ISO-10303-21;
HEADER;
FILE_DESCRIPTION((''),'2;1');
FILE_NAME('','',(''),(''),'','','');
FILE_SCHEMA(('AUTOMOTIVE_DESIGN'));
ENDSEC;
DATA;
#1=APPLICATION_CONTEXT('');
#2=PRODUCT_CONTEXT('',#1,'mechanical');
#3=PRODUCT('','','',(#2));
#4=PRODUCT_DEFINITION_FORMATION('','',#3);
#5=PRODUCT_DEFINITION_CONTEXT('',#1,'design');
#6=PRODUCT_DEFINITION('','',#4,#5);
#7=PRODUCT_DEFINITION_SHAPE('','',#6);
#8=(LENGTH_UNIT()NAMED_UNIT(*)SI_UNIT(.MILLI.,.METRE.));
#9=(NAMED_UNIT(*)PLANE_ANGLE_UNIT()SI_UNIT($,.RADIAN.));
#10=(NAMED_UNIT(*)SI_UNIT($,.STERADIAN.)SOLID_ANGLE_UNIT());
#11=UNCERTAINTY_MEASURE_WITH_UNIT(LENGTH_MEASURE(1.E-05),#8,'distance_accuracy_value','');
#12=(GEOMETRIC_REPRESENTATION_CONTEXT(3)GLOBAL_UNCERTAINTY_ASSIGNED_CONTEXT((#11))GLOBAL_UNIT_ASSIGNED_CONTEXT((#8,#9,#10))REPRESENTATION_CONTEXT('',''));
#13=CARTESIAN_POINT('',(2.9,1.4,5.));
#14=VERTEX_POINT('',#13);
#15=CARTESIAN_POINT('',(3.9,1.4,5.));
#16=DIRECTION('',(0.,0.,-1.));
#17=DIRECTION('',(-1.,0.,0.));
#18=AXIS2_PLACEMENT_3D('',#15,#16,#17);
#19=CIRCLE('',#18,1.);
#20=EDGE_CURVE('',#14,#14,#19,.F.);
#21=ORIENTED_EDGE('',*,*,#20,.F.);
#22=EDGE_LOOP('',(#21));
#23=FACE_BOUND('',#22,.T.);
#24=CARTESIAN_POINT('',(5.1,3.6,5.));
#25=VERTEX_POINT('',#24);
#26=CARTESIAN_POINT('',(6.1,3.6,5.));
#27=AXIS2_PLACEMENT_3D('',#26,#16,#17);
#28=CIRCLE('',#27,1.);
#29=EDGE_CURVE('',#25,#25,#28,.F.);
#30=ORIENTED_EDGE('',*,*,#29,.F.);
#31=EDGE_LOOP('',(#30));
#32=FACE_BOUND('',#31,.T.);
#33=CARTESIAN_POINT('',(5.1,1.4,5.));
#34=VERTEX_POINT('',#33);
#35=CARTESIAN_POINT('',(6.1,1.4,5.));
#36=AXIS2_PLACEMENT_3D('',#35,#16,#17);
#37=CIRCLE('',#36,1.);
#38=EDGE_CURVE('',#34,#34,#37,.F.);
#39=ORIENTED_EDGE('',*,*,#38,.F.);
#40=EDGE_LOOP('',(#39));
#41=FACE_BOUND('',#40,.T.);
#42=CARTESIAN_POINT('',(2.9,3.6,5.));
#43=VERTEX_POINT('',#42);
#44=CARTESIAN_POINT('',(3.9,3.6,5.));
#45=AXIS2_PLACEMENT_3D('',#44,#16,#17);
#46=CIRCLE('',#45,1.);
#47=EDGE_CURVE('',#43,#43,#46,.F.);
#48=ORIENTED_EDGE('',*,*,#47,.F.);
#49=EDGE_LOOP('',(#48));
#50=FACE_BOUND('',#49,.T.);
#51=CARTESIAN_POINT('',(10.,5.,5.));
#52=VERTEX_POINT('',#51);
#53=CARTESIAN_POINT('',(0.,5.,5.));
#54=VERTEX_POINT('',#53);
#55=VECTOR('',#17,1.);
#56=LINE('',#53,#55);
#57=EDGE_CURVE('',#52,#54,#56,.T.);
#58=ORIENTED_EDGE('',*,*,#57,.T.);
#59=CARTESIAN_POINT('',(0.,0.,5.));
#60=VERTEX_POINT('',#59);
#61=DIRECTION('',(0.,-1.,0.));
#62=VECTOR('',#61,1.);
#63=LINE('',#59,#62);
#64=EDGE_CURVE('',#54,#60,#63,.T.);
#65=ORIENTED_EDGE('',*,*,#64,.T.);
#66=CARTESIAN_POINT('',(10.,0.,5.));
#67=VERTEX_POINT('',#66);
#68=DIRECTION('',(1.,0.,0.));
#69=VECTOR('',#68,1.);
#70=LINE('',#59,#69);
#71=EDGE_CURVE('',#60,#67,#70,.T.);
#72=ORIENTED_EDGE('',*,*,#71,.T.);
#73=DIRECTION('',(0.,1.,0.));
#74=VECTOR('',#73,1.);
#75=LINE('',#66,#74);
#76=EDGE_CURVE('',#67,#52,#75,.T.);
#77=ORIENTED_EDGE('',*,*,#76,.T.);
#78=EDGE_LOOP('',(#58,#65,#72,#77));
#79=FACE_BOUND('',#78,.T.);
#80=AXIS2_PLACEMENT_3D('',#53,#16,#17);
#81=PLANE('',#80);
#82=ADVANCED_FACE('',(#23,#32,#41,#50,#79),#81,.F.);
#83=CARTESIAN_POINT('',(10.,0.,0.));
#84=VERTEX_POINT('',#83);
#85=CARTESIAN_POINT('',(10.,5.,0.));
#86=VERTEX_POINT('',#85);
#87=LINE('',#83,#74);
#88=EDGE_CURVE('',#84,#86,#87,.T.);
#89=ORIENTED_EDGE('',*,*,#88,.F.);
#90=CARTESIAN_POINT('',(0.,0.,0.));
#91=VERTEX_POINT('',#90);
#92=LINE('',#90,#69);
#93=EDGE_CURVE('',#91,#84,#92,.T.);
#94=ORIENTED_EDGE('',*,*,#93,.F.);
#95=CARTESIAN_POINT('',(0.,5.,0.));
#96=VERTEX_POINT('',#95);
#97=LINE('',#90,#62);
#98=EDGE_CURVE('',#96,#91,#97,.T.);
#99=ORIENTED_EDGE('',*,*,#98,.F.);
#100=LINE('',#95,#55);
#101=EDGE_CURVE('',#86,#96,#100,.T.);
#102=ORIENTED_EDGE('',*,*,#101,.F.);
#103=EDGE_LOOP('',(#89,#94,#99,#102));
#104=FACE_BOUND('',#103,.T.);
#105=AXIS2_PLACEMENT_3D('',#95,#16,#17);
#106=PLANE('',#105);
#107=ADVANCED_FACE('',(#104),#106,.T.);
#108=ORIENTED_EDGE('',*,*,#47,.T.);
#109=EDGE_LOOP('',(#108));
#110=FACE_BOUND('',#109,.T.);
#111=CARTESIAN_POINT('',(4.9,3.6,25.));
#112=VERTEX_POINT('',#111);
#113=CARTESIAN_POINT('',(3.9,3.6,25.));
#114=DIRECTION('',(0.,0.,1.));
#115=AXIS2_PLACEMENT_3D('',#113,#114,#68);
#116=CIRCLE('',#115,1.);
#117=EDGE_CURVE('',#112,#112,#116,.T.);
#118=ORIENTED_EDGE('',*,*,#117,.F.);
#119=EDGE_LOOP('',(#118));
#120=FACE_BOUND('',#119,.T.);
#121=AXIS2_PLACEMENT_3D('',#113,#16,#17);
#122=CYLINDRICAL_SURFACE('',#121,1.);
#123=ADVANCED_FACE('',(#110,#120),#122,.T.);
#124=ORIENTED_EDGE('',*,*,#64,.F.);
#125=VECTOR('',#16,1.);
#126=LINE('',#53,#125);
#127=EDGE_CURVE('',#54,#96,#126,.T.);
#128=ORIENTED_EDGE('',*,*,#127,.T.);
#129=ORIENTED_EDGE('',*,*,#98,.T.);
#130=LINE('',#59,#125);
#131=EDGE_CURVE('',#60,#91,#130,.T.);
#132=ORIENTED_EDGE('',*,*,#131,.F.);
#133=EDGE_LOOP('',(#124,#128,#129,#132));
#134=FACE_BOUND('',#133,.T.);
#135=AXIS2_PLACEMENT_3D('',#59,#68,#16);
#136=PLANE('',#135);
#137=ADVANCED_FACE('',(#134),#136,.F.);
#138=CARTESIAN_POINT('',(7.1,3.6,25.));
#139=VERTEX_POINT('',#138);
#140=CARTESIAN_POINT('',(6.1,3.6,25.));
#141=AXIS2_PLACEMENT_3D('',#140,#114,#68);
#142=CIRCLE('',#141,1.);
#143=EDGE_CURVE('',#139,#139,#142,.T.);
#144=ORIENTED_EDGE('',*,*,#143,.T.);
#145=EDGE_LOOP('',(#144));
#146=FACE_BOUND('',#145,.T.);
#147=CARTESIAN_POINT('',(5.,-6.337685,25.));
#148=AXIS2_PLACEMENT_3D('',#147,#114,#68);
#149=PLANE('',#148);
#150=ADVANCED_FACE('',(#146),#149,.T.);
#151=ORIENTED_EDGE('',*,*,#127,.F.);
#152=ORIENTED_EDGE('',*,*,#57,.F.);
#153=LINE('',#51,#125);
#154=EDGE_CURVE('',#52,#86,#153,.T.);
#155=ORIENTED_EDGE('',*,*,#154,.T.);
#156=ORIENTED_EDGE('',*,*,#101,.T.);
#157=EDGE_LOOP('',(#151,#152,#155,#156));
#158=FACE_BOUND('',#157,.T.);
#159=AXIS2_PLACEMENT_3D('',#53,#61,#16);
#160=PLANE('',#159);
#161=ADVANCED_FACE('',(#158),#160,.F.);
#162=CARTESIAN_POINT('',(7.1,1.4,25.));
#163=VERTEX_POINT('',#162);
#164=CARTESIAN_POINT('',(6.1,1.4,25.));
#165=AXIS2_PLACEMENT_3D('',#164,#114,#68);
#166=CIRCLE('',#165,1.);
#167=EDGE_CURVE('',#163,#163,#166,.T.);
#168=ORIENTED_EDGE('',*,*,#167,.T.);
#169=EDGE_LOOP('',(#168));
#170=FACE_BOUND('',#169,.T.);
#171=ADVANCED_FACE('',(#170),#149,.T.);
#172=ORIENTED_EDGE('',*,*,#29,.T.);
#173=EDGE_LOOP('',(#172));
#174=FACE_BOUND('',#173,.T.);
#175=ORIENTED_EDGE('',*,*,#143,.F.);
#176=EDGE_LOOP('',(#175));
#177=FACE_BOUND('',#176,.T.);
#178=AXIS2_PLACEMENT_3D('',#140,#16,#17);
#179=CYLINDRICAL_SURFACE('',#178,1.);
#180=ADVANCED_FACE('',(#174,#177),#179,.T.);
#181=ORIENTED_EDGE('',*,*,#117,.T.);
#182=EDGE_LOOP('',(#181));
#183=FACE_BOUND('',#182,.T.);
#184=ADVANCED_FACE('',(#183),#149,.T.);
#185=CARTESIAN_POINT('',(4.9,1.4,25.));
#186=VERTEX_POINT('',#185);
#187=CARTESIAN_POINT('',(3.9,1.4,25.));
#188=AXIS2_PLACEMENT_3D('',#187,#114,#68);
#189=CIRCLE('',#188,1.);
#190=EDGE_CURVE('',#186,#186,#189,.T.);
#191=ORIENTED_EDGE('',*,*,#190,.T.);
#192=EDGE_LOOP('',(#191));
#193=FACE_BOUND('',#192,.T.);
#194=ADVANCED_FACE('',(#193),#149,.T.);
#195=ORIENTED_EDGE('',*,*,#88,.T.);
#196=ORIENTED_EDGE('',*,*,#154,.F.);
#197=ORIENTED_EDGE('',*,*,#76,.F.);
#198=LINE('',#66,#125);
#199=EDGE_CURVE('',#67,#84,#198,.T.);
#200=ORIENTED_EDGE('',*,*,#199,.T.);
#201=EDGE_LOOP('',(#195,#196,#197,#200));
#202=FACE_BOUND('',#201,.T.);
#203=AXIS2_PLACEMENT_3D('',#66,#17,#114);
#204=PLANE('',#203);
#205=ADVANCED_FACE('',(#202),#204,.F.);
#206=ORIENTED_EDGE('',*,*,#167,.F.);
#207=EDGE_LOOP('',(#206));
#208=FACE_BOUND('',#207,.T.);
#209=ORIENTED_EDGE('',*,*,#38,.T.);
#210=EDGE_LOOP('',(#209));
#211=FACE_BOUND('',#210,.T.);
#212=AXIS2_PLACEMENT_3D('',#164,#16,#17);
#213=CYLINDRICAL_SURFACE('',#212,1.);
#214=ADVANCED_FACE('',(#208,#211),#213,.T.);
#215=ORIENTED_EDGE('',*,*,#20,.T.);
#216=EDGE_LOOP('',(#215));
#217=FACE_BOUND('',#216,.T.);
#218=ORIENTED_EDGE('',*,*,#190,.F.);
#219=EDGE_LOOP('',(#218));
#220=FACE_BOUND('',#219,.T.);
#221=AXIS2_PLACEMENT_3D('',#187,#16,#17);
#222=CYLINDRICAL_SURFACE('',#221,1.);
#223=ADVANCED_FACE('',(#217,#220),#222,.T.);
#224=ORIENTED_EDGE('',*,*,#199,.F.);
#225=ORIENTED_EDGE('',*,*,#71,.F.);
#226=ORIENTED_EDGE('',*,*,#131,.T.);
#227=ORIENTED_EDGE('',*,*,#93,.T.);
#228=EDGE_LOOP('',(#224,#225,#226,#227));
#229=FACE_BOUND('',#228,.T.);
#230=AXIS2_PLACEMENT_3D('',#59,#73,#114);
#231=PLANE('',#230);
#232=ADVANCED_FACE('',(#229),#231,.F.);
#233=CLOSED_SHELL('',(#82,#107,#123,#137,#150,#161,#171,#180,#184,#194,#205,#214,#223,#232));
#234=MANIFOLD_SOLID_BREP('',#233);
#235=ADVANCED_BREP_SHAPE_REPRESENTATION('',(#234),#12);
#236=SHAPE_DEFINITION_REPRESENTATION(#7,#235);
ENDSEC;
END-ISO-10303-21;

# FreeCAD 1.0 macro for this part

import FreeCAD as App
import Part
import Sketcher
from FreeCAD import Vector
Q = App.Units.Quantity

doc = App.newDocument("Part")
params = doc.addObject("Spreadsheet::Sheet", "Params")
for row, (alias, value) in enumerate([
    ("sketch1_width", "10 mm"),
    ("sketch1_height", "5 mm"),
    ("pad1_length", "5 mm"),
    ("sketch2_diameter", "2 mm"),
    ("pad2_length", "20 mm"),
], start=1):
    params.set(f"A{row}", alias)
    params.set(f"B{row}", "=" + value)
    params.setAlias(f"B{row}", alias)

body = doc.addObject("PartDesign::Body", "Body")

# Sketch on XY plane
sketch1 = body.newObject("Sketcher::SketchObject", "Sketch")
sketch1.AttachmentSupport = (doc.getObject("XY_Plane"), [""])
sketch1.MapMode = "FlatFace"
sketch1.addGeometry([
    Part.LineSegment(Vector(0, 5, 0), Vector(0, 0, 0)),
    Part.LineSegment(Vector(0, 0, 0), Vector(10, 0, 0)),
    Part.LineSegment(Vector(10, 0, 0), Vector(10, 5, 0)),
    Part.LineSegment(Vector(10, 5, 0), Vector(0, 5, 0)),
], False)
sketch1.addConstraint([
    Sketcher.Constraint("Coincident", 0, 2, 1, 1),
    Sketcher.Constraint("Coincident", 1, 2, 2, 1),
    Sketcher.Constraint("Coincident", 2, 2, 3, 1),
    Sketcher.Constraint("Coincident", 3, 2, 0, 1),
    Sketcher.Constraint("Vertical", 0),
    Sketcher.Constraint("Horizontal", 1),
    Sketcher.Constraint("Vertical", 2),
    Sketcher.Constraint("Horizontal", 3),
    Sketcher.Constraint("Coincident", 0, 2, -1, 1),
    Sketcher.Constraint("DistanceX", 1, 1, 1, 2, Q("10 mm")),
    Sketcher.Constraint("DistanceY", 0, 2, 0, 1, Q("5 mm")),
])
sketch1.setExpression("Constraints[9]", "Params.sketch1_width")
sketch1.setExpression("Constraints[10]", "Params.sketch1_height")
pad1 = body.newObject("PartDesign::Pad", "Pad")
pad1.Profile = sketch1
pad1.setExpression("Length", "Params.pad1_length")

# Sketch on XY plane
sketch2 = body.newObject("Sketcher::SketchObject", "Sketch001")
sketch2.AttachmentSupport = (doc.getObject("XY_Plane"), [""])
sketch2.MapMode = "FlatFace"
sketch2.AttachmentOffset = App.Placement(Vector(0, 0, 5), App.Rotation())
sketch2.addGeometry([
    Part.Circle(Vector(3.9, 3.6, 0), Vector(0, 0, 1), 1),
    Part.Circle(Vector(6.1, 3.6, 0), Vector(0, 0, 1), 1),
    Part.Circle(Vector(3.9, 1.4, 0), Vector(0, 0, 1), 1),
    Part.Circle(Vector(6.1, 1.4, 0), Vector(0, 0, 1), 1),
], False)
sketch2.addConstraint([
    Sketcher.Constraint("Equal", 0, 1),
    Sketcher.Constraint("Equal", 1, 2),
    Sketcher.Constraint("Equal", 2, 3),
    Sketcher.Constraint("Horizontal", 0, 3, 1, 3),
    Sketcher.Constraint("Horizontal", 2, 3, 3, 3),
    Sketcher.Constraint("Vertical", 0, 3, 2, 3),
    Sketcher.Constraint("Vertical", 1, 3, 3, 3),
    Sketcher.Constraint("Diameter", 0, Q("2 mm")),
    Sketcher.Constraint("DistanceX", -1, 1, 0, 3, Q("3.9 mm")),
    Sketcher.Constraint("DistanceY", -1, 1, 0, 3, Q("3.6 mm")),
    Sketcher.Constraint("DistanceX", -1, 1, 1, 3, Q("6.1 mm")),
    Sketcher.Constraint("DistanceY", -1, 1, 2, 3, Q("1.4 mm")),
])
sketch2.setExpression("Constraints[7]", "Params.sketch2_diameter")
pad2 = body.newObject("PartDesign::Pad", "Pad001")
pad2.Profile = sketch2
pad2.setExpression("Length", "Params.pad2_length")

doc.recompute()
